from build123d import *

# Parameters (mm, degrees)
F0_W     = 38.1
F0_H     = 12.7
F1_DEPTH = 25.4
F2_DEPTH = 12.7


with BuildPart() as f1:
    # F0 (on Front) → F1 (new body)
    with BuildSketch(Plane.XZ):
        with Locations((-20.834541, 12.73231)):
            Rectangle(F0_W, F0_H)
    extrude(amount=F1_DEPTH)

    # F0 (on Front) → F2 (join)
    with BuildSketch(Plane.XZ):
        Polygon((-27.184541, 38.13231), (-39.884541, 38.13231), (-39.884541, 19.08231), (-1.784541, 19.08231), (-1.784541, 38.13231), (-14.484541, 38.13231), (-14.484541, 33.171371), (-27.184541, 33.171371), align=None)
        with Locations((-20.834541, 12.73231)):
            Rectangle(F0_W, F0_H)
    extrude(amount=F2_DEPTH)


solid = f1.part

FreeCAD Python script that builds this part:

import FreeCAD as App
import Part
import Sketcher

V = App.Vector
Q = App.Units.Quantity


def add_polygon(sketch, points):
    """Adds a closed chain of lines whose ends are joined by coincident constraints."""
    first, n = sketch.GeometryCount, len(points)
    for a, b in zip(points, points[1:] + points[:1]):
        sketch.addGeometry(Part.LineSegment(App.Vector(*a, 0), App.Vector(*b, 0)), False)
    for i in range(n):
        sketch.addConstraint(Sketcher.Constraint("Coincident", first + i, 2, first + (i + 1) % n, 1))

doc = App.newDocument("Part")
params = doc.addObject("Spreadsheet::Sheet", "Params")
for row, (alias, value) in enumerate([
    ("sketch1_width", "1.5 in"),
    ("sketch1_height", "0.5 in"),
    ("pad1_length", "1 in"),
    ("sketch2_width", "0.5 in"),
    ("sketch2_height", "1.25 in"),
    ("pad2_length", "0.5 in"),
], start=1):
    params.set(f"A{row}", alias)
    params.set(f"B{row}", "=" + value)
    params.setAlias(f"B{row}", alias)

body = doc.addObject("PartDesign::Body", "Body")

# Sketch on XZ plane
sketch1 = body.newObject("Sketcher::SketchObject", "Sketch")
sketch1.AttachmentSupport = (doc.getObject("XZ_Plane"), [""])
sketch1.MapMode = "FlatFace"
add_polygon(sketch1, [(-39.884541, 19.08231), (-39.884541, 6.38231), (-1.784541, 6.38231), (-1.784541, 19.08231)])  # lines 0-3
sketch1.addConstraint([
    Sketcher.Constraint("Vertical", 0),
    Sketcher.Constraint("Horizontal", 1),
    Sketcher.Constraint("Vertical", 2),
    Sketcher.Constraint("Horizontal", 3),
    Sketcher.Constraint("DistanceX", 1, 1, 1, 2, Q("1.5 in")),
    Sketcher.Constraint("DistanceY", 0, 2, 0, 1, Q("0.5 in")),
    Sketcher.Constraint("DistanceX", 0, 2, -1, 1, Q("39.884541 mm")),
    Sketcher.Constraint("DistanceY", -1, 1, 0, 2, Q("6.38231 mm")),
])
sketch1.setExpression("Constraints[8]", "Params.sketch1_width")
sketch1.setExpression("Constraints[9]", "Params.sketch1_height")
pad1 = body.newObject("PartDesign::Pad", "Pad")
pad1.Profile = sketch1
pad1.setExpression("Length", "Params.pad1_length")

# Sketch on XZ plane
sketch2 = body.newObject("Sketcher::SketchObject", "Sketch001")
sketch2.AttachmentSupport = (doc.getObject("XZ_Plane"), [""])
sketch2.MapMode = "FlatFace"
add_polygon(sketch2, [(-27.184541, 38.13231), (-39.884541, 38.13231), (-39.884541, 6.38231), (-1.784541, 6.38231), (-1.784541, 38.13231), (-14.484541, 38.13231), (-14.484541, 33.171371), (-27.184541, 33.171371)])  # lines 0-7
sketch2.addConstraint([
    Sketcher.Constraint("Horizontal", 0),
    Sketcher.Constraint("Vertical", 1),
    Sketcher.Constraint("Horizontal", 2),
    Sketcher.Constraint("Vertical", 3),
    Sketcher.Constraint("Horizontal", 4),
    Sketcher.Constraint("Vertical", 5),
    Sketcher.Constraint("Horizontal", 6),
    Sketcher.Constraint("Vertical", 7),
    Sketcher.Constraint("Horizontal", 0, 2, 3, 2),
    Sketcher.Constraint("Equal", 0, 4),
    Sketcher.Constraint("Equal", 4, 6),
    Sketcher.Constraint("DistanceX", 0, 2, 0, 1, Q("0.5 in")),
    Sketcher.Constraint("DistanceY", 1, 2, 1, 1, Q("1.25 in")),
    Sketcher.Constraint("DistanceY", 5, 2, 5, 1, Q("4.960939 mm")),
    Sketcher.Constraint("DistanceX", 0, 2, -1, 1, Q("39.884541 mm")),
    Sketcher.Constraint("DistanceY", -1, 1, 0, 2, Q("38.13231 mm")),
])
sketch2.setExpression("Constraints[19]", "Params.sketch2_width")
sketch2.setExpression("Constraints[20]", "Params.sketch2_height")
pad2 = body.newObject("PartDesign::Pad", "Pad001")
pad2.Profile = sketch2
pad2.setExpression("Length", "Params.pad2_length")

doc.recompute()
